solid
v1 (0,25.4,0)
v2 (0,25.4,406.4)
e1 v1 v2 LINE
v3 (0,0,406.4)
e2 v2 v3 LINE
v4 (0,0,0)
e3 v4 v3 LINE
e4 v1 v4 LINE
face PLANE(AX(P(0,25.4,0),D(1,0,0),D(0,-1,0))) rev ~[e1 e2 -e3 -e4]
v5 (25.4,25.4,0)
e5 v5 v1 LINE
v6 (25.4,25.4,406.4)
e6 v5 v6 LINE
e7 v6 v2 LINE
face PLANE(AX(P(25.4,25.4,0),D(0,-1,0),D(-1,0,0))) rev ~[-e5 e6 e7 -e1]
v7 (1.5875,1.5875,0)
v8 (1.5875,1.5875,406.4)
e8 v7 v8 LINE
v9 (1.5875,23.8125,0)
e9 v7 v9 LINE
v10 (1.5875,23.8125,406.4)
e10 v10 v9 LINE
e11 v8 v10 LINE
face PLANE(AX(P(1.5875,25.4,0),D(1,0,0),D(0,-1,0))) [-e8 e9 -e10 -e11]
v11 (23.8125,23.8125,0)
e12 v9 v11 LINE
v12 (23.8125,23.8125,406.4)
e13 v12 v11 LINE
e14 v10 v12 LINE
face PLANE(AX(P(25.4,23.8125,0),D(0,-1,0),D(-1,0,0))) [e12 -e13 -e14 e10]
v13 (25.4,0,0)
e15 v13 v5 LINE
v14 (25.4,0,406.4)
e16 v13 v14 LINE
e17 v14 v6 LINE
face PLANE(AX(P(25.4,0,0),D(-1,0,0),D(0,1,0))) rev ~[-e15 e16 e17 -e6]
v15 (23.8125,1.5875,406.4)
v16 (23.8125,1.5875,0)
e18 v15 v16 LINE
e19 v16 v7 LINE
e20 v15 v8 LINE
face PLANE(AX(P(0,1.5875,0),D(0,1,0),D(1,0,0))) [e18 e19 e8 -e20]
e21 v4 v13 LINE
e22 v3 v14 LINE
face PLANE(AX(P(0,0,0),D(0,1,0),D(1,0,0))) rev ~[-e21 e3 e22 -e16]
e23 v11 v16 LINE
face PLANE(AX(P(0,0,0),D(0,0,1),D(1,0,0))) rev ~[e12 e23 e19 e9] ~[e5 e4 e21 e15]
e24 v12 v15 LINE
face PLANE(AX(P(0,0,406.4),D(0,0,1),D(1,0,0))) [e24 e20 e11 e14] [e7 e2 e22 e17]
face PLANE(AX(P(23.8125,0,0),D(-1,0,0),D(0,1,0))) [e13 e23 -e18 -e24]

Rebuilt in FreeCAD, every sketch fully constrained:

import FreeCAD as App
import Part
import Sketcher
from FreeCAD import Vector
Q = App.Units.Quantity


def faces_at(feature, points):
    """Names of the faces that lie closest to the given points."""
    faces = feature.Shape.Faces
    near = lambda p: min(range(len(faces)), key=lambda i: faces[i].distToShape(Part.Vertex(*p))[0])
    return sorted({f"Face{near(p) + 1}" for p in points})


def add_polygon(sketch, points):
    """Adds a closed chain of lines whose ends are joined by coincident constraints."""
    first, n = sketch.GeometryCount, len(points)
    for a, b in zip(points, points[1:] + points[:1]):
        sketch.addGeometry(Part.LineSegment(App.Vector(*a, 0), App.Vector(*b, 0)), False)
    for i in range(n):
        sketch.addConstraint(Sketcher.Constraint("Coincident", first + i, 2, first + (i + 1) % n, 1))

doc = App.newDocument("Part")
params = doc.addObject("Spreadsheet::Sheet", "Params")
for row, (alias, value) in enumerate([
    ("sketch1_width", "1 in"),
    ("pad1_length", "16 in"),
    ("thickness_wall", "0.0625 in"),
], start=1):
    params.set(f"A{row}", alias)
    params.set(f"B{row}", "=" + value)
    params.setAlias(f"B{row}", alias)

body = doc.addObject("PartDesign::Body", "Body")

sketch1 = doc.addObject("Sketcher::SketchObject", "Sketch")
body.addObject(sketch1)
sketch1.AttachmentSupport = (doc.XY_Plane, [""])
sketch1.MapMode = "FlatFace"
add_polygon(sketch1, [(0, 25), (0, 0), (25, 0), (25, 25)])
sketch1.addConstraint([
    Sketcher.Constraint("Vertical", 0),
    Sketcher.Constraint("Horizontal", 1),
    Sketcher.Constraint("Vertical", 2),
    Sketcher.Constraint("Horizontal", 3),
    Sketcher.Constraint("Coincident", 0, 2, -1, 1),
    Sketcher.Constraint("Equal", 3, 0),
    Sketcher.Constraint("DistanceX", 1, 1, 1, 2, Q("1 in")),
])
sketch1.setExpression("Constraints[10]", "Params.sketch1_width")
pad1 = doc.addObject("PartDesign::Pad", "Pad")
body.addObject(pad1)
pad1.Profile = sketch1
pad1.setExpression("Length", "Params.pad1_length")
doc.recompute()

thickness = doc.addObject("PartDesign::Thickness", "Thickness")
body.addObject(thickness)
thickness.Base = (pad1, faces_at(pad1, [(8.467, 16.933, 0), (8.467, 16.933, 406.4)]))
thickness.setExpression("Value", "Params.thickness_wall")
thickness.Reversed = True
thickness.Join = "Intersection"

doc.recompute()
